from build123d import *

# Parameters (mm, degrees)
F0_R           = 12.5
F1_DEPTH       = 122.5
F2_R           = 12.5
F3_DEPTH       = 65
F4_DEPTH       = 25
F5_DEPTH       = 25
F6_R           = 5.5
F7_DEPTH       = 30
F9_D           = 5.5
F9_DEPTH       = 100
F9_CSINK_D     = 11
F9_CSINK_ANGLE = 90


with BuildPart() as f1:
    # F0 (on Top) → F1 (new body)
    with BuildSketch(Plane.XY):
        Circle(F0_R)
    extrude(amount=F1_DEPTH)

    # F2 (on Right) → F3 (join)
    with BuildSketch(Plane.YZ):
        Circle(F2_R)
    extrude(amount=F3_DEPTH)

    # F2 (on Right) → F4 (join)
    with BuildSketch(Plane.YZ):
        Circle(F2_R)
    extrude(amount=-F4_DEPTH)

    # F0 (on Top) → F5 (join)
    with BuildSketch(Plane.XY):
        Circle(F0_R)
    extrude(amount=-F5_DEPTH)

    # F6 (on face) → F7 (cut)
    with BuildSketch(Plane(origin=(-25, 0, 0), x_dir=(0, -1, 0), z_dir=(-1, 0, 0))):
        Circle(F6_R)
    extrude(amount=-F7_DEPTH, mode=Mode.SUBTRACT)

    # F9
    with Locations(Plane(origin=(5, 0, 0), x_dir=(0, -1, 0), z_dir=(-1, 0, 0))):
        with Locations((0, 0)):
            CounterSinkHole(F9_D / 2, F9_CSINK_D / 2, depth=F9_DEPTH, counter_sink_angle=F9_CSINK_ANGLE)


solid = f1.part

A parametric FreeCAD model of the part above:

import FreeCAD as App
import Part
import Sketcher

V = App.Vector

doc = App.newDocument("Part")
body = doc.addObject("PartDesign::Body", "Body")

# Sketch on XY plane
sketch1 = doc.addObject("Sketcher::SketchObject", "Sketch")
body.addObject(sketch1)
sketch1.AttachmentSupport = (doc.XY_Plane, [""])
sketch1.MapMode = "FlatFace"
sketch1.addGeometry(Part.Circle(V(0, 0, 0), V(0, 0, 1), 12), False)
sketch1.addConstraint([
    Sketcher.Constraint("Coincident", 0, 3, -1, 1),
    Sketcher.Constraint("Diameter", 0, 25.0),
])
pad1 = doc.addObject("PartDesign::Pad", "Pad")
body.addObject(pad1)
pad1.Profile = sketch1
pad1.Length = 122.5

# Sketch on YZ plane
sketch2 = doc.addObject("Sketcher::SketchObject", "Sketch001")
body.addObject(sketch2)
sketch2.AttachmentSupport = (doc.YZ_Plane, [""])
sketch2.MapMode = "FlatFace"
sketch2.addGeometry(Part.Circle(V(0, 0, 0), V(0, 0, 1), 12), False)
sketch2.addConstraint([
    Sketcher.Constraint("Coincident", 0, 3, -1, 1),
    Sketcher.Constraint("Diameter", 0, 25.0),
])
pad2 = doc.addObject("PartDesign::Pad", "Pad001")
body.addObject(pad2)
pad2.Profile = sketch2
pad2.Length = 65

# Sketch on YZ plane
sketch3 = doc.addObject("Sketcher::SketchObject", "Sketch002")
body.addObject(sketch3)
sketch3.AttachmentSupport = (doc.YZ_Plane, [""])
sketch3.MapMode = "FlatFace"
sketch3.addGeometry(Part.Circle(V(0, 0, 0), V(0, 0, 1), 12), False)
sketch3.addConstraint([
    Sketcher.Constraint("Coincident", 0, 3, -1, 1),
    Sketcher.Constraint("Diameter", 0, 25.0),
])
pad3 = doc.addObject("PartDesign::Pad", "Pad002")
body.addObject(pad3)
pad3.Profile = sketch3
pad3.Length = 25
pad3.Reversed = True

# Sketch on XY plane
sketch4 = doc.addObject("Sketcher::SketchObject", "Sketch003")
body.addObject(sketch4)
sketch4.AttachmentSupport = (doc.XY_Plane, [""])
sketch4.MapMode = "FlatFace"
sketch4.addGeometry(Part.Circle(V(0, 0, 0), V(0, 0, 1), 12), False)
sketch4.addConstraint([
    Sketcher.Constraint("Coincident", 0, 3, -1, 1),
    Sketcher.Constraint("Diameter", 0, 25.0),
])
pad4 = doc.addObject("PartDesign::Pad", "Pad003")
body.addObject(pad4)
pad4.Profile = sketch4
pad4.Length = 25
pad4.Reversed = True

# Sketch on YZ plane
sketch5 = doc.addObject("Sketcher::SketchObject", "Sketch004")
body.addObject(sketch5)
sketch5.AttachmentSupport = (doc.YZ_Plane, [""])
sketch5.MapMode = "FlatFace"
sketch5.AttachmentOffset = App.Placement(V(0, 0, -25), App.Rotation())
sketch5.addGeometry(Part.Circle(V(0, 0, 0), V(0, 0, 1), 6), False)
sketch5.addConstraint([
    Sketcher.Constraint("Coincident", 0, 3, -1, 1),
    Sketcher.Constraint("Diameter", 0, 11.0),
])
pocket1 = doc.addObject("PartDesign::Pocket", "Pocket")
body.addObject(pocket1)
pocket1.Profile = sketch5
pocket1.Length = 30
pocket1.Reversed = True

# Sketch on YZ plane
sketch6 = doc.addObject("Sketcher::SketchObject", "Sketch005")
body.addObject(sketch6)
sketch6.AttachmentSupport = (doc.YZ_Plane, [""])
sketch6.MapMode = "FlatFace"
sketch6.AttachmentOffset = App.Placement(V(0, 0, 5), App.Rotation())
sketch6.addGeometry(Part.Circle(V(0, 0, 0), V(0, 0, 1), 2.8), False)
sketch6.addConstraint([
    Sketcher.Constraint("Coincident", 0, 3, -1, 1),
    Sketcher.Constraint("Diameter", 0, 5.5),
])
doc.recompute()
hole = doc.addObject("PartDesign::Hole", "Hole")
body.addObject(hole)
hole.Profile = sketch6
hole.ThreadType = "None"
hole.Diameter = 5.5
hole.DepthType = "Dimension"
hole.Depth = 100
hole.DrillPoint = "Flat"
hole.HoleCutType = "Countersink"
hole.HoleCutDiameter = 11
hole.HoleCutCountersinkAngle = 90
hole.Reversed = True

doc.recompute()
